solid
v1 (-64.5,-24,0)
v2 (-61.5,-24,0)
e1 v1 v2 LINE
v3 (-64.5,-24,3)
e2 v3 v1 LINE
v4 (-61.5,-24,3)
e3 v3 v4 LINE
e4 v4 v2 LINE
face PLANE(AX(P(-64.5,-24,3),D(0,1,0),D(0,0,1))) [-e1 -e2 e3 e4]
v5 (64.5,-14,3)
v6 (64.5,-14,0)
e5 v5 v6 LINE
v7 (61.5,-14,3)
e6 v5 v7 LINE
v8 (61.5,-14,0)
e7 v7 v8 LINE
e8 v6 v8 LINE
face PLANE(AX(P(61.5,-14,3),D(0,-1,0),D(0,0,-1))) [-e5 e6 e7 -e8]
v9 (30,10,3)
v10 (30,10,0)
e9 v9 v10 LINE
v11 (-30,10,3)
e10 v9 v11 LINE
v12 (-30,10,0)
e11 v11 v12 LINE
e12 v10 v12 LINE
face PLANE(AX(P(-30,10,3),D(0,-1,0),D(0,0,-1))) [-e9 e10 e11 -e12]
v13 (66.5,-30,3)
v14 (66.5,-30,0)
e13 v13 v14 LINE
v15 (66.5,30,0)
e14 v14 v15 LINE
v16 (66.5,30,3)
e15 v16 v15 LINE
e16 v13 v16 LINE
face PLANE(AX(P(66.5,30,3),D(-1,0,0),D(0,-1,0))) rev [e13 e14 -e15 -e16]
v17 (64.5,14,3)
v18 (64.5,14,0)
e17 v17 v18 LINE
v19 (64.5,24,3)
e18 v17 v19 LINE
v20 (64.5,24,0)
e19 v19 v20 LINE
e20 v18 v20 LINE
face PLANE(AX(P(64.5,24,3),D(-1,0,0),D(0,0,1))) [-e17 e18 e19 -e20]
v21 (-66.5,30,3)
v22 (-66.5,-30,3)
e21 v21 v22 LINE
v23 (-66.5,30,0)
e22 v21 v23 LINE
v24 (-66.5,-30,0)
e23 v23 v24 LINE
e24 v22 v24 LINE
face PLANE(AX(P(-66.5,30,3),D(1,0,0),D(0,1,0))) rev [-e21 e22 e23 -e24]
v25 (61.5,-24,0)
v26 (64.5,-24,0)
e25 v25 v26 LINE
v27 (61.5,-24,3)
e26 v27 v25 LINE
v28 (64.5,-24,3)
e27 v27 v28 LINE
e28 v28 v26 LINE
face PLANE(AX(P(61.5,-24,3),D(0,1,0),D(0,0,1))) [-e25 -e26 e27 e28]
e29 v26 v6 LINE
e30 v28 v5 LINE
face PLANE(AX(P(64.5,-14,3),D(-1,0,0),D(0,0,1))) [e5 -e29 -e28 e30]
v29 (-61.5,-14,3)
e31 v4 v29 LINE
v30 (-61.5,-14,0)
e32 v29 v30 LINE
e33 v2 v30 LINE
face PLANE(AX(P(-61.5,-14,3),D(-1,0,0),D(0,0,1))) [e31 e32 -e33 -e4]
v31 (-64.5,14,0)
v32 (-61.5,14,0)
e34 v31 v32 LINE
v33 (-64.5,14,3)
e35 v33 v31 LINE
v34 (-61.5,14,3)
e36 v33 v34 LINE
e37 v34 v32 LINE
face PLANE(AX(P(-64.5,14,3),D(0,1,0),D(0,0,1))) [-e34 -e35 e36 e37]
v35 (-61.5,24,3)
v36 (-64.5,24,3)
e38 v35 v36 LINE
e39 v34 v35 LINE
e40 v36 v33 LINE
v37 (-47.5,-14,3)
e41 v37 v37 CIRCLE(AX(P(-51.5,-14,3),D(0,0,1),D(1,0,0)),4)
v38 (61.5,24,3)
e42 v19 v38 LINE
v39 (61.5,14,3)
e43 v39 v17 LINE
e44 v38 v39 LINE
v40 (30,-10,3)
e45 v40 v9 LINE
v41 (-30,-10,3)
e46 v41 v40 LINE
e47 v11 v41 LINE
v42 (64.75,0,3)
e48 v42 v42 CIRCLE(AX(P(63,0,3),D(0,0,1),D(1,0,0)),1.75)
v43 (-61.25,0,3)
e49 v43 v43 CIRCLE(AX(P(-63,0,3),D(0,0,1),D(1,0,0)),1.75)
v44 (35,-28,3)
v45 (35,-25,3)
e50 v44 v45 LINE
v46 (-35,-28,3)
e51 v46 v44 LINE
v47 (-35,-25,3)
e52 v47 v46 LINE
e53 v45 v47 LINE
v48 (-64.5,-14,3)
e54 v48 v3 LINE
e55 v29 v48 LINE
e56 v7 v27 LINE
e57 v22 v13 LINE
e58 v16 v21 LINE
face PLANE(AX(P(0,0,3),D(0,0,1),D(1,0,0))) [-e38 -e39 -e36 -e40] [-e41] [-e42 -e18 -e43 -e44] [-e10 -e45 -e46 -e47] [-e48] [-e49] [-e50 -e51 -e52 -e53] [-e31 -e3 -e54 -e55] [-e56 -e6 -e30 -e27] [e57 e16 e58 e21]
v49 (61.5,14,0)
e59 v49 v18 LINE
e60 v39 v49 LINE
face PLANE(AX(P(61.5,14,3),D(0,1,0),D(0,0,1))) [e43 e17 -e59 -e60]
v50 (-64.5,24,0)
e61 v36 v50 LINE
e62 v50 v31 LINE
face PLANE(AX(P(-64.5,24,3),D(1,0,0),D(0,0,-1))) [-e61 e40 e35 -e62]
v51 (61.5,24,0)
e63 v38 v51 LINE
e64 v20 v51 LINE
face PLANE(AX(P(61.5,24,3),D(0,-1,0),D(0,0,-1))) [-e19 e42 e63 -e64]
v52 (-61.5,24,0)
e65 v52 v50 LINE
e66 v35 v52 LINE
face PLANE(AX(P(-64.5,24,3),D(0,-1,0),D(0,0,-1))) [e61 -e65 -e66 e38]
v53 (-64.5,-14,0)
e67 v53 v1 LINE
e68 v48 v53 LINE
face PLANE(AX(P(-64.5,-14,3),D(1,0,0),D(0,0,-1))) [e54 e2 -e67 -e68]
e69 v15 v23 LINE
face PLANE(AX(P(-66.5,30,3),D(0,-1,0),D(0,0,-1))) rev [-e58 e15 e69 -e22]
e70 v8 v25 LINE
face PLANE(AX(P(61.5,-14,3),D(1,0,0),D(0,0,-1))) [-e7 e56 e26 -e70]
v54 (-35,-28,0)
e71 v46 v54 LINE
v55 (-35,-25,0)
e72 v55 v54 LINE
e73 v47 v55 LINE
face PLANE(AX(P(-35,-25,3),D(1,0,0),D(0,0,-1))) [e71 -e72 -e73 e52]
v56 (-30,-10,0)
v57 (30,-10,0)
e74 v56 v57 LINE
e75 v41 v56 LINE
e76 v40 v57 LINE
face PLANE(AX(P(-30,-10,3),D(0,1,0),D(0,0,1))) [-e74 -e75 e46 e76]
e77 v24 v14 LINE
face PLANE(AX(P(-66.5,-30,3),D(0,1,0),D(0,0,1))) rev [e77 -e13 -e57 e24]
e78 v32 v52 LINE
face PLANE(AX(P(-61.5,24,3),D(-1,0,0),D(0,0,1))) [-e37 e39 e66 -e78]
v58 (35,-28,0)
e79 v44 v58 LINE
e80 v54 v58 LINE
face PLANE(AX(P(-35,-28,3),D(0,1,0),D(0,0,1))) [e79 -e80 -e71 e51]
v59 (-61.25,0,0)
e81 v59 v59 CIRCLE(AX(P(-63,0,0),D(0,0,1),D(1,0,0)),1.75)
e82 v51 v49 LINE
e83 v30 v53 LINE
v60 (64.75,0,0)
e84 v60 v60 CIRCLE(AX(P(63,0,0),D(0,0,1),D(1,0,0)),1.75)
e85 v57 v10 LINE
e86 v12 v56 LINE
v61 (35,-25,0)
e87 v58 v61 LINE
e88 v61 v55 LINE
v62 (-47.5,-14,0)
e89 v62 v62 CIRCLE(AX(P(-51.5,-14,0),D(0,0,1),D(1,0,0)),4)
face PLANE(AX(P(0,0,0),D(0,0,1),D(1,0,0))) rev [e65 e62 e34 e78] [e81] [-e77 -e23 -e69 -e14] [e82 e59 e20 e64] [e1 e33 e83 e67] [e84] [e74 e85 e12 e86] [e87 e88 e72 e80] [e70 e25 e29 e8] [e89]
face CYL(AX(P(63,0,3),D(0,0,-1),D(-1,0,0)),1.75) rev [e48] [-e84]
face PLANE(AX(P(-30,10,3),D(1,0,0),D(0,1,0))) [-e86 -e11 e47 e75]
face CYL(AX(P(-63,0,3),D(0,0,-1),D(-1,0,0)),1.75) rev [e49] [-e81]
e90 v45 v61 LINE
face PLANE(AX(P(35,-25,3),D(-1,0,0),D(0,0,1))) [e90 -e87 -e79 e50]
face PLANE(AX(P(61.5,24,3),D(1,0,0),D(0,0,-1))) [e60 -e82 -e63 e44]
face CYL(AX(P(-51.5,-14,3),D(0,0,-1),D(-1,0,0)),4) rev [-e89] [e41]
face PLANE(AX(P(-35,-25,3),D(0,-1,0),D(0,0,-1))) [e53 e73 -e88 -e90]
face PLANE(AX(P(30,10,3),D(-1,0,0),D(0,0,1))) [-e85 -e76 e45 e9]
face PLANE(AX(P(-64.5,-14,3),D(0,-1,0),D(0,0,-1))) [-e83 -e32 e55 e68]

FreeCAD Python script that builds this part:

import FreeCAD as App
import Part
import Sketcher

V = App.Vector
Q = App.Units.Quantity

doc = App.newDocument("Part")
body = doc.addObject("PartDesign::Body", "Body")

# Sketch on XY plane
sketch1 = body.newObject("Sketcher::SketchObject", "Sketch")
sketch1.AttachmentSupport = (doc.getObject("XY_Plane"), [""])
sketch1.MapMode = "FlatFace"
sketch1.addGeometry([
    Part.LineSegment(V(-66.5, 30, 0), V(-66.5, -30, 0)),  # 0
    Part.LineSegment(V(-66.5, -30, 0), V(66.5, -30, 0)),  # 1
    Part.LineSegment(V(66.5, -30, 0), V(66.5, 30, 0)),  # 2
    Part.LineSegment(V(66.5, 30, 0), V(-66.5, 30, 0)),  # 3
    Part.LineSegment(V(-61.5, -24, 0), V(-64.5, -24, 0)),  # 4
    Part.LineSegment(V(-64.5, -24, 0), V(-64.5, -14, 0)),  # 5
    Part.LineSegment(V(-64.5, -14, 0), V(-61.5, -14, 0)),  # 6
    Part.LineSegment(V(-61.5, -14, 0), V(-61.5, -24, 0)),  # 7
    Part.Circle(V(-51.5, -14, 0), V(0, 0, 1), 4),  # 8
    Part.LineSegment(V(35, -28, 0), V(-35, -28, 0)),  # 9
    Part.LineSegment(V(-35, -28, 0), V(-35, -25, 0)),  # 10
    Part.LineSegment(V(-35, -25, 0), V(35, -25, 0)),  # 11
    Part.LineSegment(V(35, -25, 0), V(35, -28, 0)),  # 12
    Part.LineSegment(V(64.5, -24, 0), V(61.5, -24, 0)),  # 13
    Part.LineSegment(V(61.5, -24, 0), V(61.5, -14, 0)),  # 14
    Part.LineSegment(V(61.5, -14, 0), V(64.5, -14, 0)),  # 15
    Part.LineSegment(V(64.5, -14, 0), V(64.5, -24, 0)),  # 16
    Part.Circle(V(-63, 0, 0), V(0, 0, 1), 1.8),  # 17
    Part.LineSegment(V(-61.5, 14, 0), V(-64.5, 14, 0)),  # 18
    Part.LineSegment(V(-64.5, 14, 0), V(-64.5, 24, 0)),  # 19
    Part.LineSegment(V(-64.5, 24, 0), V(-61.5, 24, 0)),  # 20
    Part.LineSegment(V(-61.5, 24, 0), V(-61.5, 14, 0)),  # 21
    Part.LineSegment(V(30, -10, 0), V(-30, -10, 0)),  # 22
    Part.LineSegment(V(-30, -10, 0), V(-30, 10, 0)),  # 23
    Part.LineSegment(V(-30, 10, 0), V(30, 10, 0)),  # 24
    Part.LineSegment(V(30, 10, 0), V(30, -10, 0)),  # 25
    Part.Circle(V(63, 0, 0), V(0, 0, 1), 1.8),  # 26
    Part.LineSegment(V(64.5, 14, 0), V(61.5, 14, 0)),  # 27
    Part.LineSegment(V(61.5, 14, 0), V(61.5, 24, 0)),  # 28
    Part.LineSegment(V(61.5, 24, 0), V(64.5, 24, 0)),  # 29
    Part.LineSegment(V(64.5, 24, 0), V(64.5, 14, 0)),  # 30
], False)
sketch1.addConstraint([
    Sketcher.Constraint("Coincident", 0, 2, 1, 1),
    Sketcher.Constraint("Coincident", 1, 2, 2, 1),
    Sketcher.Constraint("Coincident", 2, 2, 3, 1),
    Sketcher.Constraint("Coincident", 3, 2, 0, 1),
    Sketcher.Constraint("Coincident", 4, 2, 5, 1),
    Sketcher.Constraint("Coincident", 5, 2, 6, 1),
    Sketcher.Constraint("Coincident", 6, 2, 7, 1),
    Sketcher.Constraint("Coincident", 7, 2, 4, 1),
    Sketcher.Constraint("Coincident", 9, 2, 10, 1),
    Sketcher.Constraint("Coincident", 10, 2, 11, 1),
    Sketcher.Constraint("Coincident", 11, 2, 12, 1),
    Sketcher.Constraint("Coincident", 12, 2, 9, 1),
    Sketcher.Constraint("Coincident", 13, 2, 14, 1),
    Sketcher.Constraint("Coincident", 14, 2, 15, 1),
    Sketcher.Constraint("Coincident", 15, 2, 16, 1),
    Sketcher.Constraint("Coincident", 16, 2, 13, 1),
    Sketcher.Constraint("Coincident", 18, 2, 19, 1),
    Sketcher.Constraint("Coincident", 19, 2, 20, 1),
    Sketcher.Constraint("Coincident", 20, 2, 21, 1),
    Sketcher.Constraint("Coincident", 21, 2, 18, 1),
    Sketcher.Constraint("Coincident", 22, 2, 23, 1),
    Sketcher.Constraint("Coincident", 23, 2, 24, 1),
    Sketcher.Constraint("Coincident", 24, 2, 25, 1),
    Sketcher.Constraint("Coincident", 25, 2, 22, 1),
    Sketcher.Constraint("Coincident", 27, 2, 28, 1),
    Sketcher.Constraint("Coincident", 28, 2, 29, 1),
    Sketcher.Constraint("Coincident", 29, 2, 30, 1),
    Sketcher.Constraint("Coincident", 30, 2, 27, 1),
    Sketcher.Constraint("Vertical", 0),
    Sketcher.Constraint("Horizontal", 1),
    Sketcher.Constraint("Vertical", 2),
    Sketcher.Constraint("Horizontal", 3),
    Sketcher.Constraint("Horizontal", 4),
    Sketcher.Constraint("Vertical", 5),
    Sketcher.Constraint("Horizontal", 6),
    Sketcher.Constraint("Vertical", 7),
    Sketcher.Constraint("Horizontal", 9),
    Sketcher.Constraint("Vertical", 10),
    Sketcher.Constraint("Horizontal", 11),
    Sketcher.Constraint("Vertical", 12),
    Sketcher.Constraint("Horizontal", 13),
    Sketcher.Constraint("Vertical", 14),
    Sketcher.Constraint("Horizontal", 15),
    Sketcher.Constraint("Vertical", 16),
    Sketcher.Constraint("Horizontal", 18),
    Sketcher.Constraint("Vertical", 19),
    Sketcher.Constraint("Horizontal", 20),
    Sketcher.Constraint("Vertical", 21),
    Sketcher.Constraint("Horizontal", 22),
    Sketcher.Constraint("Vertical", 23),
    Sketcher.Constraint("Horizontal", 24),
    Sketcher.Constraint("Vertical", 25),
    Sketcher.Constraint("Horizontal", 27),
    Sketcher.Constraint("Vertical", 28),
    Sketcher.Constraint("Horizontal", 29),
    Sketcher.Constraint("Vertical", 30),
    Sketcher.Constraint("Equal", 17, 26),
    Sketcher.Constraint("Symmetric", 17, 3, 26, 3, -1, 1),
    Sketcher.Constraint("Symmetric", 0, 2, 2, 2, -1, 1),
    Sketcher.Constraint("Symmetric", 15, 2, 18, 2, -1, 1),
    Sketcher.Constraint("Symmetric", 13, 2, 20, 2, -1, 1),
    Sketcher.Constraint("Symmetric", 22, 2, 24, 2, -1, 1),
    Sketcher.Constraint("Symmetric", 6, 2, 27, 2, -1, 1),
    Sketcher.Constraint("Symmetric", 4, 2, 29, 2, -1, 1),
    Sketcher.Constraint("Symmetric", 7, 2, 13, 2, -2),
    Sketcher.Constraint("Symmetric", 5, 2, 15, 2, -2),
    Sketcher.Constraint("PointOnObject", 17, 3, -1),
    Sketcher.Constraint("Horizontal", 8, 3, 5, 2),
    Sketcher.Constraint("Equal", 24, 0),
    Sketcher.Constraint("Equal", 29, 10),
    Sketcher.Constraint("Diameter", 8, Q("8 mm")),
    Sketcher.Constraint("Diameter", 17, Q("3.5 mm")),
    Sketcher.Constraint("DistanceX", 1, 1, 1, 2, Q("133 mm")),
    Sketcher.Constraint("DistanceX", 4, 2, 4, 1, Q("3 mm")),
    Sketcher.Constraint("DistanceX", 9, 2, 9, 1, Q("70 mm")),
    Sketcher.Constraint("DistanceX", 22, 2, 22, 1, Q("60 mm")),
    Sketcher.Constraint("DistanceY", 5, 1, 5, 2, Q("10 mm")),
    Sketcher.Constraint("DistanceY", 23, 1, 23, 2, Q("20 mm")),
    Sketcher.Constraint("DistanceY", 8, 3, -1, 1, Q("14 mm")),
    Sketcher.Constraint("DistanceX", 17, 3, -1, 1, Q("63 mm")),
    Sketcher.Constraint("DistanceX", 9, 2, -1, 1, Q("35 mm")),
    Sketcher.Constraint("DistanceY", 9, 2, -1, 1, Q("28 mm")),
    Sketcher.Constraint("DistanceX", 0, 2, 8, 3, Q("15 mm")),
    Sketcher.Constraint("DistanceX", 0, 2, 4, 2, Q("2 mm")),
])
pad1 = body.newObject("PartDesign::Pad", "Pad")
pad1.Profile = sketch1
pad1.Length = 3

doc.recompute()
